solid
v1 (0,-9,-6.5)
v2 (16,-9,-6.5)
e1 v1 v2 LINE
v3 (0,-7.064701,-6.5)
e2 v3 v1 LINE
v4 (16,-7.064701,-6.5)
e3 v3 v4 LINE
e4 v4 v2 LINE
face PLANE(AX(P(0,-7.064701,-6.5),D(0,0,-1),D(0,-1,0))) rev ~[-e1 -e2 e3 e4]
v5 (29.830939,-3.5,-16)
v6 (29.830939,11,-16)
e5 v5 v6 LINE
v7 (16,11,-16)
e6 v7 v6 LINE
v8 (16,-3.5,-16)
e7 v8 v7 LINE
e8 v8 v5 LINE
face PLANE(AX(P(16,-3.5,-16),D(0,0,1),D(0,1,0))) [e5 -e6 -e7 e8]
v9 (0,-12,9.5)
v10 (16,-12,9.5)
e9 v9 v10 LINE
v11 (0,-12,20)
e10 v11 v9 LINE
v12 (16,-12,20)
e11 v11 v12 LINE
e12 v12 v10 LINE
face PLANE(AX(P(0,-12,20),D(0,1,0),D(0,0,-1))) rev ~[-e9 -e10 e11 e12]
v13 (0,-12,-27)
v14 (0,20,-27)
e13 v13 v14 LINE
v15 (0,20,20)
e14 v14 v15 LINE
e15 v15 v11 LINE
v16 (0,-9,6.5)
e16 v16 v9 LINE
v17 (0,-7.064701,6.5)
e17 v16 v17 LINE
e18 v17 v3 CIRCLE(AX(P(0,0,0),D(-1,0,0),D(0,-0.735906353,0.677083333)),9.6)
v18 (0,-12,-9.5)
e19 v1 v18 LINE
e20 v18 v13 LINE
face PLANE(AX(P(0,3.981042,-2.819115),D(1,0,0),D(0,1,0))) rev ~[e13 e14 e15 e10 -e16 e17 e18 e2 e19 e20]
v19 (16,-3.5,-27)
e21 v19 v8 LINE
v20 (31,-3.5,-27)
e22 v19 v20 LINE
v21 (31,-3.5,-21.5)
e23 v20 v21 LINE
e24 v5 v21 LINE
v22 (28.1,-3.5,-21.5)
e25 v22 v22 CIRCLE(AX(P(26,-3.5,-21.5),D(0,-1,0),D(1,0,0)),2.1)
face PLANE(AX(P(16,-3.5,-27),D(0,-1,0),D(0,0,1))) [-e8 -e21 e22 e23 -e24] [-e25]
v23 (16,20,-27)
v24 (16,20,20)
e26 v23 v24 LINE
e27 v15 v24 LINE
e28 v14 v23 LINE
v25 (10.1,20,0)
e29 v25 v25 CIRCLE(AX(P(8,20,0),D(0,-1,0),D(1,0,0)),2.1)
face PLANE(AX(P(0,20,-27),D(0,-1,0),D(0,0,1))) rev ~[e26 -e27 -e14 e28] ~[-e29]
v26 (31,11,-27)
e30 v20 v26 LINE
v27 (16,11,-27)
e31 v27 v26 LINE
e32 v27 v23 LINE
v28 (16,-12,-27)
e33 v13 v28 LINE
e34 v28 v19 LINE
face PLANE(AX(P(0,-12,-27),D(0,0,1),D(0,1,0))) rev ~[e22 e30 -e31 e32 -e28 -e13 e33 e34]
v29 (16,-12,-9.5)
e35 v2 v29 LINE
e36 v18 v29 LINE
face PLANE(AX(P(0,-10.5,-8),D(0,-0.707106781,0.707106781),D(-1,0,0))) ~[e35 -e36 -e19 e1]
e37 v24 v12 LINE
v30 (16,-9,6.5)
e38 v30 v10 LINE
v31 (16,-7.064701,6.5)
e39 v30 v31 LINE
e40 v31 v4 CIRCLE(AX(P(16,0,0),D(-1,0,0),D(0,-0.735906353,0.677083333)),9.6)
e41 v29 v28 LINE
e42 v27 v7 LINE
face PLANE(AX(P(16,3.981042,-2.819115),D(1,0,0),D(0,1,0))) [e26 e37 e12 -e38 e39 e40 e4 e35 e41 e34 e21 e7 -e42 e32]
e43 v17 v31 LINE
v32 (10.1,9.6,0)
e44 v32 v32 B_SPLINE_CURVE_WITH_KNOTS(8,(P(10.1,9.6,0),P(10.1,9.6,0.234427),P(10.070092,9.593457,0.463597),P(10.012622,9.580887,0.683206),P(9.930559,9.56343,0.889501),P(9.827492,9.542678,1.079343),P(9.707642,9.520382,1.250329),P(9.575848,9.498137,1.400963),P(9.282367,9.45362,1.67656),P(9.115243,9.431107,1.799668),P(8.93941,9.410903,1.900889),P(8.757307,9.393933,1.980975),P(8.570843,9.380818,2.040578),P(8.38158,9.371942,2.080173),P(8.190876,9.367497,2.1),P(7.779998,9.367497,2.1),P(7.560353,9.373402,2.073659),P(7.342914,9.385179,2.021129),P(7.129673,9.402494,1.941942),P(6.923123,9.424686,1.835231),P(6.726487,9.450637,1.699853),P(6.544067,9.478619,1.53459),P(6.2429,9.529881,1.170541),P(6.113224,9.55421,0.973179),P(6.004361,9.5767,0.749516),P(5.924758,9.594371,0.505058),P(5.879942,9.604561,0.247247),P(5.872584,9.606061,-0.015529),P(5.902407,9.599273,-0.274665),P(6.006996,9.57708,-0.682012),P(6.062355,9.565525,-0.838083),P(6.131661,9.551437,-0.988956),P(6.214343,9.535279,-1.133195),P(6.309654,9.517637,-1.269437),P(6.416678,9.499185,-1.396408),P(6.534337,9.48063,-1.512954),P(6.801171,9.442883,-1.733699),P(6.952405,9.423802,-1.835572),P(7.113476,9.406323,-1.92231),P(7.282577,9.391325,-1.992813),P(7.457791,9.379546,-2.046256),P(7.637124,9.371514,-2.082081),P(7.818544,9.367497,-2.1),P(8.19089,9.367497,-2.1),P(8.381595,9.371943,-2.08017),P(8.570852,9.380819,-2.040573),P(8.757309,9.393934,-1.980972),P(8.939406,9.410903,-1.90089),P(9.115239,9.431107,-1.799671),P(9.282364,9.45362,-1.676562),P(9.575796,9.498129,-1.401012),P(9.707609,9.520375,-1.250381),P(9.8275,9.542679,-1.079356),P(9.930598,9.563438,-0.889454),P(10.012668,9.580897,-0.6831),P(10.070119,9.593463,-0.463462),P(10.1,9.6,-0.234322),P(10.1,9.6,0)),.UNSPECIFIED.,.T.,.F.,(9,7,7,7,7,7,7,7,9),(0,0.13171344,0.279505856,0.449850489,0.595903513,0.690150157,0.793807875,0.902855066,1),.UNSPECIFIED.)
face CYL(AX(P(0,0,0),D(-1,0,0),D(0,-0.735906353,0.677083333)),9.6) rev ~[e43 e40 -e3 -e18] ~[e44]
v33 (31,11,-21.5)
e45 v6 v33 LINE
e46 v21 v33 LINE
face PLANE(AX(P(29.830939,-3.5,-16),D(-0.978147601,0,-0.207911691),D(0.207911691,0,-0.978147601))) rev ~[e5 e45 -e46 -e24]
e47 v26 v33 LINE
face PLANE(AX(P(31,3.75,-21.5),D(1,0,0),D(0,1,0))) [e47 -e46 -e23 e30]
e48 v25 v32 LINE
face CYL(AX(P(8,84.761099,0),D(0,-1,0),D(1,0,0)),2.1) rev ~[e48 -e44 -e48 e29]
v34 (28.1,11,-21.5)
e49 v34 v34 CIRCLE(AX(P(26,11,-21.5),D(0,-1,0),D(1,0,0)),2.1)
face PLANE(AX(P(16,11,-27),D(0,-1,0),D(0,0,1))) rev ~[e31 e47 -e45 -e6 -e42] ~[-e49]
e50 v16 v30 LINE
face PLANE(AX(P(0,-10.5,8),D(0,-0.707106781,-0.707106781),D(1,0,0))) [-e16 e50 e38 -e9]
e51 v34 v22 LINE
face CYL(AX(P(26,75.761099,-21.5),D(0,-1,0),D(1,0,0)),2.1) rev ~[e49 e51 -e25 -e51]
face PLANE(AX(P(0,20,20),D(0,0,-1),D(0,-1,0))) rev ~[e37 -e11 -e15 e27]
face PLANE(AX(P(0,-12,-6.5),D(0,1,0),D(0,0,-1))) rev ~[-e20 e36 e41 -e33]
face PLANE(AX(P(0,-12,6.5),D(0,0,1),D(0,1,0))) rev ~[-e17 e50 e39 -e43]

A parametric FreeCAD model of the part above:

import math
import FreeCAD as App
import Part
import Sketcher
Q = App.Units.Quantity


def edges_at(feature, points):
    """Names of the edges that pass closest to the given points."""
    edges = feature.Shape.Edges
    near = lambda p: min(range(len(edges)), key=lambda i: edges[i].distToShape(Part.Vertex(*p))[0])
    return sorted({f"Edge{near(p) + 1}" for p in points})

doc = App.newDocument("Part")
params = doc.addObject("Spreadsheet::Sheet", "Params")
for row, (alias, value) in enumerate([
    ("sketch1_radius", "9.6 mm"),
    ("sketch1_width", "32 mm"),
    ("sketch1_height", "47 mm"),
    ("sketch1_height2", "20.5 mm"),
    ("sketch1_height3", "13.5 mm"),
    ("pad1_length", "16 mm"),
    ("sketch2_height", "11 mm"),
    ("sketch2_width", "14.5 mm"),
    ("pad2_length", "15 mm"),
    ("sketch3_height", "5.5 mm"),
    ("sketch4_diameter", "4.2 mm"),
    ("hole_diameter", "4.2 mm"),
    ("sketch5_diameter", "4.2 mm"),
    ("hole2_diameter", "4.2 mm"),
    ("chamfer_size", "3 mm"),
], start=1):
    params.set(f"A{row}", alias)
    params.set(f"B{row}", "=" + value)
    params.setAlias(f"B{row}", alias)

body = doc.addObject("PartDesign::Body", "Body")

sketch1 = body.newObject("Sketcher::SketchObject", "Sketch")
sketch1.AttachmentSupport = (doc.getObject("YZ_Plane"), [""])
sketch1.MapMode = "FlatFace"
sketch1.addGeometry(Part.ArcOfCircle(Part.Circle(App.Vector(0, 0, 0), App.Vector(0, 0, 1), 9.6), math.radians(-137), math.radians(137)), False)
sketch1.addGeometry(Part.LineSegment(App.Vector(-7.1, -6.5, 0), App.Vector(-12, -6.5, 0)), False)
sketch1.addGeometry(Part.LineSegment(App.Vector(-12, -6.5, 0), App.Vector(-12, -27, 0)), False)
sketch1.addGeometry(Part.LineSegment(App.Vector(-12, -27, 0), App.Vector(20, -27, 0)), False)
sketch1.addGeometry(Part.LineSegment(App.Vector(20, -27, 0), App.Vector(20, 20, 0)), False)
sketch1.addGeometry(Part.LineSegment(App.Vector(20, 20, 0), App.Vector(-12, 20, 0)), False)
sketch1.addGeometry(Part.LineSegment(App.Vector(-12, 20, 0), App.Vector(-12, 6.5, 0)), False)
sketch1.addGeometry(Part.LineSegment(App.Vector(-12, 6.5, 0), App.Vector(-7.1, 6.5, 0)), False)
sketch1.addConstraint(Sketcher.Constraint("Coincident", 0, 1, 1, 1))
sketch1.addConstraint(Sketcher.Constraint("Coincident", 1, 2, 2, 1))
sketch1.addConstraint(Sketcher.Constraint("Coincident", 2, 2, 3, 1))
sketch1.addConstraint(Sketcher.Constraint("Coincident", 3, 2, 4, 1))
sketch1.addConstraint(Sketcher.Constraint("Coincident", 4, 2, 5, 1))
sketch1.addConstraint(Sketcher.Constraint("Coincident", 5, 2, 6, 1))
sketch1.addConstraint(Sketcher.Constraint("Coincident", 6, 2, 7, 1))
sketch1.addConstraint(Sketcher.Constraint("Coincident", 7, 2, 0, 2))
sketch1.addConstraint(Sketcher.Constraint("Horizontal", 1))
sketch1.addConstraint(Sketcher.Constraint("Vertical", 2))
sketch1.addConstraint(Sketcher.Constraint("Horizontal", 3))
sketch1.addConstraint(Sketcher.Constraint("Vertical", 4))
sketch1.addConstraint(Sketcher.Constraint("Horizontal", 5))
sketch1.addConstraint(Sketcher.Constraint("Vertical", 6))
sketch1.addConstraint(Sketcher.Constraint("Horizontal", 7))
sketch1.addConstraint(Sketcher.Constraint("Coincident", 0, 3, -1, 1))
sketch1.addConstraint(Sketcher.Constraint("Symmetric", 1, 2, 6, 2, -1))
sketch1.addConstraint(Sketcher.Constraint("Radius", 0, 9.6))
sketch1.addConstraint(Sketcher.Constraint("DistanceX", 3, 1, 3, 2, 32.0))
sketch1.addConstraint(Sketcher.Constraint("DistanceY", 4, 1, 4, 2, 47.0))
sketch1.addConstraint(Sketcher.Constraint("DistanceY", 2, 2, 2, 1, 20.5))
sketch1.addConstraint(Sketcher.Constraint("DistanceY", 6, 2, 6, 1, 13.5))
sketch1.addConstraint(Sketcher.Constraint("DistanceX", 1, 2, -1, 1, 12.0))
sketch1.setExpression("Constraints[17]", "Params.sketch1_radius")
sketch1.setExpression("Constraints[18]", "Params.sketch1_width")
sketch1.setExpression("Constraints[19]", "Params.sketch1_height")
sketch1.setExpression("Constraints[20]", "Params.sketch1_height2")
sketch1.setExpression("Constraints[21]", "Params.sketch1_height3")
pad1 = body.newObject("PartDesign::Pad", "Pad")
pad1.Profile = sketch1
pad1.setExpression("Length", "Params.pad1_length")

sketch2 = body.newObject("Sketcher::SketchObject", "Sketch001")
sketch2.AttachmentSupport = (doc.getObject("YZ_Plane"), [""])
sketch2.MapMode = "FlatFace"
sketch2.AttachmentOffset = App.Placement(App.Vector(0, 0, 16), App.Rotation())
sketch2.addGeometry(Part.LineSegment(App.Vector(-4, -16, 0), App.Vector(-4, -27, 0)), False)
sketch2.addGeometry(Part.LineSegment(App.Vector(-4, -27, 0), App.Vector(11, -27, 0)), False)
sketch2.addGeometry(Part.LineSegment(App.Vector(11, -27, 0), App.Vector(11, -16, 0)), False)
sketch2.addGeometry(Part.LineSegment(App.Vector(11, -16, 0), App.Vector(-4, -16, 0)), False)
sketch2.addConstraint(Sketcher.Constraint("Coincident", 0, 2, 1, 1))
sketch2.addConstraint(Sketcher.Constraint("Coincident", 1, 2, 2, 1))
sketch2.addConstraint(Sketcher.Constraint("Coincident", 2, 2, 3, 1))
sketch2.addConstraint(Sketcher.Constraint("Coincident", 3, 2, 0, 1))
sketch2.addConstraint(Sketcher.Constraint("Vertical", 0))
sketch2.addConstraint(Sketcher.Constraint("Horizontal", 1))
sketch2.addConstraint(Sketcher.Constraint("Vertical", 2))
sketch2.addConstraint(Sketcher.Constraint("Horizontal", 3))
sketch2.addConstraint(Sketcher.Constraint("DistanceY", 0, 2, 0, 1, 11.0))
sketch2.addConstraint(Sketcher.Constraint("DistanceX", 1, 1, 1, 2, 14.5))
sketch2.addConstraint(Sketcher.Constraint("DistanceY", 0, 2, -1, 1, 27.0))
sketch2.addConstraint(Sketcher.Constraint("DistanceX", -1, 1, 1, 2, 11.0))
sketch2.setExpression("Constraints[8]", "Params.sketch2_height")
sketch2.setExpression("Constraints[9]", "Params.sketch2_width")
pad2 = body.newObject("PartDesign::Pad", "Pad001")
pad2.Profile = sketch2
pad2.setExpression("Length", "Params.pad2_length")

sketch3 = body.newObject("Sketcher::SketchObject", "Sketch002")
sketch3.AttachmentSupport = (doc.getObject("XZ_Plane"), [""])
sketch3.MapMode = "FlatFace"
sketch3.AttachmentOffset = App.Placement(App.Vector(0, 0, 3.5), App.Rotation())
sketch3.addGeometry(Part.LineSegment(App.Vector(29.8, -16, 0), App.Vector(31, -21.5, 0)), False)
sketch3.addGeometry(Part.LineSegment(App.Vector(31, -21.5, 0), App.Vector(31, -16, 0)), False)
sketch3.addGeometry(Part.LineSegment(App.Vector(31, -16, 0), App.Vector(29.8, -16, 0)), False)
sketch3.addConstraint(Sketcher.Constraint("Coincident", 0, 2, 1, 1))
sketch3.addConstraint(Sketcher.Constraint("Coincident", 1, 2, 2, 1))
sketch3.addConstraint(Sketcher.Constraint("Coincident", 2, 2, 0, 1))
sketch3.addConstraint(Sketcher.Constraint("Vertical", 1))
sketch3.addConstraint(Sketcher.Constraint("Horizontal", 2))
sketch3.addConstraint(Sketcher.Constraint("Angle", 0, Q("-78 deg")))
sketch3.addConstraint(Sketcher.Constraint("DistanceY", 1, 1, 1, 2, 5.5))
sketch3.addConstraint(Sketcher.Constraint("DistanceX", -1, 1, 0, 2, 31.0))
sketch3.addConstraint(Sketcher.Constraint("DistanceY", 1, 2, -1, 1, 16.0))
sketch3.setExpression("Constraints[6]", "Params.sketch3_height")
pocket1 = body.newObject("PartDesign::Pocket", "Pocket")
pocket1.Profile = sketch3
pocket1.Type = "ThroughAll"

sketch4 = body.newObject("Sketcher::SketchObject", "Sketch003")
sketch4.AttachmentSupport = (doc.getObject("XZ_Plane"), [""])
sketch4.MapMode = "FlatFace"
sketch4.AttachmentOffset = App.Placement(App.Vector(0, 0, -11), App.Rotation())
sketch4.addGeometry(Part.Circle(App.Vector(26, -21.5, 0), App.Vector(0, 0, 1), 2.1), False)
sketch4.addConstraint(Sketcher.Constraint("Diameter", 0, 4.2))
sketch4.addConstraint(Sketcher.Constraint("DistanceX", -1, 1, 0, 3, 26.0))
sketch4.addConstraint(Sketcher.Constraint("DistanceY", 0, 3, -1, 1, 21.5))
sketch4.setExpression("Constraints[0]", "Params.sketch4_diameter")
doc.recompute()
hole = body.newObject("PartDesign::Hole", "Hole")
hole.Profile = sketch4
hole.ThreadType = "None"
hole.setExpression("Diameter", "Params.hole_diameter")
hole.DepthType = "ThroughAll"
hole.Reversed = True

sketch5 = body.newObject("Sketcher::SketchObject", "Sketch004")
sketch5.AttachmentSupport = (doc.getObject("XZ_Plane"), [""])
sketch5.MapMode = "FlatFace"
sketch5.AttachmentOffset = App.Placement(App.Vector(0, 0, -20), App.Rotation())
sketch5.addGeometry(Part.Circle(App.Vector(8, 0, 0), App.Vector(0, 0, 1), 2.1), False)
sketch5.addConstraint(Sketcher.Constraint("PointOnObject", 0, 3, -1))
sketch5.addConstraint(Sketcher.Constraint("Diameter", 0, 4.2))
sketch5.addConstraint(Sketcher.Constraint("DistanceX", -1, 1, 0, 3, 8.0))
sketch5.setExpression("Constraints[1]", "Params.sketch5_diameter")
doc.recompute()
hole2 = body.newObject("PartDesign::Hole", "Hole001")
hole2.Profile = sketch5
hole2.ThreadType = "None"
hole2.setExpression("Diameter", "Params.hole2_diameter")
hole2.DepthType = "ThroughAll"
hole2.Reversed = True
doc.recompute()

chamfer = body.newObject("PartDesign::Chamfer", "Chamfer")
chamfer.Base = (hole2, edges_at(hole2, [(8, -12, 6.5), (8, -12, -6.5)]))
chamfer.setExpression("Size", "Params.chamfer_size")

doc.recompute()
